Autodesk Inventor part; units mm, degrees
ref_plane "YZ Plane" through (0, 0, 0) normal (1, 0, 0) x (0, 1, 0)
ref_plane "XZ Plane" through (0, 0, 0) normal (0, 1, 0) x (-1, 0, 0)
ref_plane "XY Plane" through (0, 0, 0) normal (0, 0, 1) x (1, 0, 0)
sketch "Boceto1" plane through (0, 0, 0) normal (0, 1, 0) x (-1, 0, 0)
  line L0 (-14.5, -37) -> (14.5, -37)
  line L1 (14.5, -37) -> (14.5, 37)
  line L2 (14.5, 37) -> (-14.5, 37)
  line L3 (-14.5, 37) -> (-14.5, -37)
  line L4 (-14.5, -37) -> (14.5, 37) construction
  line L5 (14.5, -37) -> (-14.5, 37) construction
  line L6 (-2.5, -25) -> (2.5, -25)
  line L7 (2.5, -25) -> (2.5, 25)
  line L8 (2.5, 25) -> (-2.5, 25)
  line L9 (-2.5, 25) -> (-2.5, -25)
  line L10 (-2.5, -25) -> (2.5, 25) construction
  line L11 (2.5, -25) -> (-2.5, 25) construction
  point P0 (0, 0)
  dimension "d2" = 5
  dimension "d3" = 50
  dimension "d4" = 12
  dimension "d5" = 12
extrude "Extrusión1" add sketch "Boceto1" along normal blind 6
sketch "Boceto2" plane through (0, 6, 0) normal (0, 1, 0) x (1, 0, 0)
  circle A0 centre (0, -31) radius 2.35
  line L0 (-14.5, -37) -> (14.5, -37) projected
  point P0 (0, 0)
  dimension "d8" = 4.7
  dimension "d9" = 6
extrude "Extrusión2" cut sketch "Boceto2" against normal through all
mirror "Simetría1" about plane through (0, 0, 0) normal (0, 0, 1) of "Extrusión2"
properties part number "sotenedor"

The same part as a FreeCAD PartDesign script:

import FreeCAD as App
import Part
import Sketcher
from FreeCAD import Vector
Q = App.Units.Quantity


def add_polygon(sketch, points):
    """Adds a closed chain of lines whose ends are joined by coincident constraints."""
    first, n = sketch.GeometryCount, len(points)
    for a, b in zip(points, points[1:] + points[:1]):
        sketch.addGeometry(Part.LineSegment(App.Vector(*a, 0), App.Vector(*b, 0)), False)
    for i in range(n):
        sketch.addConstraint(Sketcher.Constraint("Coincident", first + i, 2, first + (i + 1) % n, 1))

doc = App.newDocument("Part")
body = doc.addObject("PartDesign::Body", "Body")

# Sketch on XZ plane
sketch1 = body.newObject("Sketcher::SketchObject", "Sketch")
sketch1.AttachmentSupport = (doc.getObject("XZ_Plane"), [""])
sketch1.MapMode = "FlatFace"
add_polygon(sketch1, [(14, 37), (14, -37), (-14, -37), (-14, 37)])  # lines 0-3
add_polygon(sketch1, [(-2, -25), (2, -25), (2, 25), (-2, 25)])  # lines 4-7
sketch1.addConstraint(Sketcher.Constraint("Vertical", 0))
sketch1.addConstraint(Sketcher.Constraint("Horizontal", 1))
sketch1.addConstraint(Sketcher.Constraint("Vertical", 2))
sketch1.addConstraint(Sketcher.Constraint("Horizontal", 3))
sketch1.addConstraint(Sketcher.Constraint("Horizontal", 4))
sketch1.addConstraint(Sketcher.Constraint("Vertical", 5))
sketch1.addConstraint(Sketcher.Constraint("Horizontal", 6))
sketch1.addConstraint(Sketcher.Constraint("Vertical", 7))
sketch1.addConstraint(Sketcher.Constraint("Symmetric", 0, 2, 2, 2, -1, 1))
sketch1.addConstraint(Sketcher.Constraint("Symmetric", 4, 2, 6, 2, -1, 1))
sketch1.addConstraint(Sketcher.Constraint("DistanceX", 4, 1, 4, 2, Q("5 mm")))
sketch1.addConstraint(Sketcher.Constraint("DistanceY", 5, 1, 5, 2, Q("50 mm")))
sketch1.addConstraint(Sketcher.Constraint("DistanceX", 4, 2, 0, 2, Q("12 mm")))
sketch1.addConstraint(Sketcher.Constraint("DistanceY", 0, 2, 4, 2, Q("12 mm")))
pad1 = body.newObject("PartDesign::Pad", "Pad")
pad1.Profile = sketch1
pad1.Length = 6
pad1.Reversed = True

# Sketch on XZ plane
sketch2 = body.newObject("Sketcher::SketchObject", "Sketch001")
sketch2.AttachmentSupport = (doc.getObject("XZ_Plane"), [""])
sketch2.MapMode = "FlatFace"
sketch2.AttachmentOffset = App.Placement(Vector(0, 0, -6), App.Rotation())
sketch2.addGeometry(Part.Circle(Vector(0, 31, 0), Vector(0, 0, 1), 2.4), False)
sketch2.addConstraint(Sketcher.Constraint("PointOnObject", 0, 3, -2))
sketch2.addConstraint(Sketcher.Constraint("Diameter", 0, Q("4.7 mm")))
sketch2.addConstraint(Sketcher.Constraint("DistanceY", -1, 1, 0, 3, Q("31 mm")))
pocket1 = body.newObject("PartDesign::Pocket", "Pocket")
pocket1.Profile = sketch2
pocket1.Type = "ThroughAll"
pocket1.Reversed = True
doc.recompute()

mirrored = body.newObject("PartDesign::Mirrored", "Mirrored")
mirrored.Originals = [pocket1]
mirrored.MirrorPlane = (doc.getObject("XY_Plane"), [""])
body.Tip = mirrored

doc.recompute()
